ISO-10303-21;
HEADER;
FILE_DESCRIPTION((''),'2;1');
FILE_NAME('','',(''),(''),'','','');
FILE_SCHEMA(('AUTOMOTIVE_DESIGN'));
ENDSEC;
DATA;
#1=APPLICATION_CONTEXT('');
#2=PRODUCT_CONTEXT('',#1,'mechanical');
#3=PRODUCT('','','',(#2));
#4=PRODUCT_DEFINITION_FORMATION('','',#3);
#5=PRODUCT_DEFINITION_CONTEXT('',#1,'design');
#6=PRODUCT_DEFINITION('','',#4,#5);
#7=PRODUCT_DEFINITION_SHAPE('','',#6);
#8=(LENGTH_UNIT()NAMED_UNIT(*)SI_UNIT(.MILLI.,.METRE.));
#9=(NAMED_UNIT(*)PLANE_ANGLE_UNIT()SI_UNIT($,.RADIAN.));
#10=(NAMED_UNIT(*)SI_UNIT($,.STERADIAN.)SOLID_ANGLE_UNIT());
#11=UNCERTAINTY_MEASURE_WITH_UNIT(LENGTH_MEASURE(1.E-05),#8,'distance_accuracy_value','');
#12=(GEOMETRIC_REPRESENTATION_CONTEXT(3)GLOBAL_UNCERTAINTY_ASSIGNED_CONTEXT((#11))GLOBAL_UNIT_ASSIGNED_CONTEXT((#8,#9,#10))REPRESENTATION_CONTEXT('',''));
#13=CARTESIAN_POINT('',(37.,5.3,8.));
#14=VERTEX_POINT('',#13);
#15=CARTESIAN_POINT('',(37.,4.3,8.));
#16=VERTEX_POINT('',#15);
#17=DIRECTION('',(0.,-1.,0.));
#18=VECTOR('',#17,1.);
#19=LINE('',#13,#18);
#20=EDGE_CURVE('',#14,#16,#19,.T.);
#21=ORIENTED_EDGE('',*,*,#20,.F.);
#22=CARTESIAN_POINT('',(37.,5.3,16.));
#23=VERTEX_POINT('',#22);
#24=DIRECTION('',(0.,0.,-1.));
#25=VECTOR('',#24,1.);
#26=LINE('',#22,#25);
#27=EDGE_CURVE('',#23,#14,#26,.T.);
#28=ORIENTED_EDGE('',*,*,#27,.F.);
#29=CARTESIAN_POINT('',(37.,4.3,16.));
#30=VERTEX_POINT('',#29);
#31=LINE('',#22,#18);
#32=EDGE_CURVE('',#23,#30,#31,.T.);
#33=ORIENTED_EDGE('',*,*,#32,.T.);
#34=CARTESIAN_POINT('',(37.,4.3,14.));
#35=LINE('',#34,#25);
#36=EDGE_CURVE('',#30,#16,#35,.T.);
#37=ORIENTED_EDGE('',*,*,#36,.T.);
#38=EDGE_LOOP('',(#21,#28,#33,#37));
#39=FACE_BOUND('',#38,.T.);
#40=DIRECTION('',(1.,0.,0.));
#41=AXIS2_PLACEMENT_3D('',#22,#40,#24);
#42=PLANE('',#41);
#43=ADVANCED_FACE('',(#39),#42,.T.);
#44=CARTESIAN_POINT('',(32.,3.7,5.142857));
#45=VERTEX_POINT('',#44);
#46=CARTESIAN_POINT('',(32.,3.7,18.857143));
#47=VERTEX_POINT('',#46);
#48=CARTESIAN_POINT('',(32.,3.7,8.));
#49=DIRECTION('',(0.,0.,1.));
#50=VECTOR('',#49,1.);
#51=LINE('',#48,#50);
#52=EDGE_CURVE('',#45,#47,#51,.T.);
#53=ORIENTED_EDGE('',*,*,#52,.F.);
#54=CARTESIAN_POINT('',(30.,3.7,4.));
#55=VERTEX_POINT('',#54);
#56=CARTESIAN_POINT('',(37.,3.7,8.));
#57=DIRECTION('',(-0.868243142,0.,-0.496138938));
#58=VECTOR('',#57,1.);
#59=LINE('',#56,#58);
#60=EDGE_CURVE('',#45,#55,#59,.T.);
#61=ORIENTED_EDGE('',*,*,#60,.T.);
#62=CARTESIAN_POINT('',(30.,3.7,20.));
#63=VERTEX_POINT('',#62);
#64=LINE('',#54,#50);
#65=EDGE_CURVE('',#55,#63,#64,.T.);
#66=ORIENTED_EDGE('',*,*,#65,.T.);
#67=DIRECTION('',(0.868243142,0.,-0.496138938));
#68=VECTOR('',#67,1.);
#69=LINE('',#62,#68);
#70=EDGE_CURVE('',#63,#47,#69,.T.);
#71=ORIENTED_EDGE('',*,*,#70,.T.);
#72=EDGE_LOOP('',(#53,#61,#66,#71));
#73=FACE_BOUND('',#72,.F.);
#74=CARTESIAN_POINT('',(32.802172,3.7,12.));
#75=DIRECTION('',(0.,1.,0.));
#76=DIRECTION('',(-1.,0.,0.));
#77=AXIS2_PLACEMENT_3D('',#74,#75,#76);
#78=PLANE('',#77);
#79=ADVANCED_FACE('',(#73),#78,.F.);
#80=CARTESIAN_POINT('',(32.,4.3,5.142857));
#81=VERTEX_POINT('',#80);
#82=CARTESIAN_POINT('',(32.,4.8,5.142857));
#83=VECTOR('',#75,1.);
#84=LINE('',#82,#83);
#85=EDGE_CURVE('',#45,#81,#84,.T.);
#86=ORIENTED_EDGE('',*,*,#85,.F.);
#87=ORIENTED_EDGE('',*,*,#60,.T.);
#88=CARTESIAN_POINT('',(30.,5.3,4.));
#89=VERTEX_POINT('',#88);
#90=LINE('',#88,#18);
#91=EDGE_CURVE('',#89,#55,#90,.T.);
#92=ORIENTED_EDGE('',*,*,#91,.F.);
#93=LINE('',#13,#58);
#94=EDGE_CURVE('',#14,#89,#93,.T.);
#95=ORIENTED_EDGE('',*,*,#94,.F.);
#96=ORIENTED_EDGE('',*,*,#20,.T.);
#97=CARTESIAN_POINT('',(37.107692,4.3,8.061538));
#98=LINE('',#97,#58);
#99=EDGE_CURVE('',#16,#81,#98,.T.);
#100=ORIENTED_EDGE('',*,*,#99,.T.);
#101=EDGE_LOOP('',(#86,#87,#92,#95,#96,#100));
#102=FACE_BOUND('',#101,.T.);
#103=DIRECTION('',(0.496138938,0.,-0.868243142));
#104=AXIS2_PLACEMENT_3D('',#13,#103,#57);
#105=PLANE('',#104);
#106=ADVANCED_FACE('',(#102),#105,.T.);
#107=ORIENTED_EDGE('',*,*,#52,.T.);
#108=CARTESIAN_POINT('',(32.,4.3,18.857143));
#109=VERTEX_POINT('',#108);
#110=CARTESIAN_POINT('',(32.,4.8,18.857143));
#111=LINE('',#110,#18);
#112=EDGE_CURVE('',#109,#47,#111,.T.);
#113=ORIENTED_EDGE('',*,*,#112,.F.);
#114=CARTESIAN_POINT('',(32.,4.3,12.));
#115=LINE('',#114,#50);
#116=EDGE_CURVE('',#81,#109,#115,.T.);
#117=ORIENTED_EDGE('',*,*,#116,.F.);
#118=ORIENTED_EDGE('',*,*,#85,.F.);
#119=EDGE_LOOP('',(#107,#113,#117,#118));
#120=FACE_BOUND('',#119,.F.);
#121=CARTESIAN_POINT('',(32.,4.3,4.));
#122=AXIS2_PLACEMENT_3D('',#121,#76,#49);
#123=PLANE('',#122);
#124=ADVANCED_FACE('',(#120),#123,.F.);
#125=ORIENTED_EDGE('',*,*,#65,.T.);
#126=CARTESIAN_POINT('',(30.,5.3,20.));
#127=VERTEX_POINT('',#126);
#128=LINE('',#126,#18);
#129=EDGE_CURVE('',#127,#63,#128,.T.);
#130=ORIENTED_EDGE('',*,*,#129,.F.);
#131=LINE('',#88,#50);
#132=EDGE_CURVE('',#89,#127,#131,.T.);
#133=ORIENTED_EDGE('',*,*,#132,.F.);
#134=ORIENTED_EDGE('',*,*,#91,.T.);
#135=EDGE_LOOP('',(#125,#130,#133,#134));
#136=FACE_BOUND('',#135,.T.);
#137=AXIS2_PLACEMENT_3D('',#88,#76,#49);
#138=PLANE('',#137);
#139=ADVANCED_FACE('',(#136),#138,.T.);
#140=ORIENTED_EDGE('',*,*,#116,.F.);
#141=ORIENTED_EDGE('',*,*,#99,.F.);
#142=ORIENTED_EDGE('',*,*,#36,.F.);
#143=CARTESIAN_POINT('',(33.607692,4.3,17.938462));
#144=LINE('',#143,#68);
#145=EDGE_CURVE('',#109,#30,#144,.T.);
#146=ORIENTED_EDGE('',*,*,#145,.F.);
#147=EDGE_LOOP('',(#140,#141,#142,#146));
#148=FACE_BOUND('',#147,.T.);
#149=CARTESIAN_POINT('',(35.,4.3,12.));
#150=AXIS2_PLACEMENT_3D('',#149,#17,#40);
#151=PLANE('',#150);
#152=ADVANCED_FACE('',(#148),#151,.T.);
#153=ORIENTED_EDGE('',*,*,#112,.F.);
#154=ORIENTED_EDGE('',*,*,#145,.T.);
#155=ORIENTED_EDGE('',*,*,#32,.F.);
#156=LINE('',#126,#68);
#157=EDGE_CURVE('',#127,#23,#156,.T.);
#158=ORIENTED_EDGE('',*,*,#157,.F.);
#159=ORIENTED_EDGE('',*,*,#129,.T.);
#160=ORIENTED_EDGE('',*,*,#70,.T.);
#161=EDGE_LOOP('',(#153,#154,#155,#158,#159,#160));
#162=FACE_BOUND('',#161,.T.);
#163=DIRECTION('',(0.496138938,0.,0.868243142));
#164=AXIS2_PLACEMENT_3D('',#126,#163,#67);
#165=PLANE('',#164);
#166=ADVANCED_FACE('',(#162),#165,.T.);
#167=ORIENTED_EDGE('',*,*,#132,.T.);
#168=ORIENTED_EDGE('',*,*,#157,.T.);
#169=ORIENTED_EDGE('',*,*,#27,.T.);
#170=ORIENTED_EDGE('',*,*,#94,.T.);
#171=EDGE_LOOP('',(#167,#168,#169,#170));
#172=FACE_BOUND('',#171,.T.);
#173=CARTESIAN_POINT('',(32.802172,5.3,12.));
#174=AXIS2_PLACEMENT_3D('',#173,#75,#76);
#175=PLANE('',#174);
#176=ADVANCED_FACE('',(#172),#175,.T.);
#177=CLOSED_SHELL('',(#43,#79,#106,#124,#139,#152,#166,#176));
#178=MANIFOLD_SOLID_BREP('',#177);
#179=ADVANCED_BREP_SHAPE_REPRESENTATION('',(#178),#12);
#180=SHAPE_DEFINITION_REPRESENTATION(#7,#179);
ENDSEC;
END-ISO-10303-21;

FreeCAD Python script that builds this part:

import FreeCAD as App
import Part
import Sketcher

V = App.Vector

doc = App.newDocument("Part")
body = doc.addObject("PartDesign::Body", "Body")

# Sketch on XZ plane
sketch1 = doc.addObject("Sketcher::SketchObject", "Sketch")
body.addObject(sketch1)
sketch1.AttachmentSupport = (doc.XZ_Plane, [""])
sketch1.MapMode = "FlatFace"
sketch1.AttachmentOffset = App.Placement(V(0, 0, -4.3), App.Rotation())
sketch1.addGeometry([
    Part.LineSegment(V(32, 20, 0), V(32, 4, 0)),
    Part.LineSegment(V(32, 4, 0), V(38, 4, 0)),
    Part.LineSegment(V(38, 4, 0), V(38, 20, 0)),
    Part.LineSegment(V(38, 20, 0), V(32, 20, 0)),
], False)
sketch1.addConstraint([
    Sketcher.Constraint("Coincident", 0, 2, 1, 1),
    Sketcher.Constraint("Coincident", 1, 2, 2, 1),
    Sketcher.Constraint("Coincident", 2, 2, 3, 1),
    Sketcher.Constraint("Coincident", 3, 2, 0, 1),
    Sketcher.Constraint("Vertical", 0),
    Sketcher.Constraint("Horizontal", 1),
    Sketcher.Constraint("Vertical", 2),
    Sketcher.Constraint("Horizontal", 3),
    Sketcher.Constraint("DistanceX", 1, 1, 1, 2, 6.0),
    Sketcher.Constraint("DistanceY", 0, 2, 0, 1, 16.0),
    Sketcher.Constraint("DistanceX", -1, 1, 0, 2, 32.0),
    Sketcher.Constraint("DistanceY", -1, 1, 0, 2, 4.0),
])
pad1 = doc.addObject("PartDesign::Pad", "Pad")
body.addObject(pad1)
pad1.Profile = sketch1
pad1.Length = 1.6
body2 = doc.addObject("PartDesign::Body", "Body001")

# Sketch on XZ plane
sketch2 = doc.addObject("Sketcher::SketchObject", "Sketch001")
body2.addObject(sketch2)
sketch2.AttachmentSupport = (doc.getObject("XZ_Plane001"), [""])
sketch2.MapMode = "FlatFace"
sketch2.AttachmentOffset = App.Placement(V(0, 0, -5.3), App.Rotation())
sketch2.addGeometry([
    Part.LineSegment(V(37, 8, 0), V(37, 16, 0)),
    Part.LineSegment(V(37, 16, 0), V(30, 20, 0)),
    Part.LineSegment(V(30, 20, 0), V(30, 4, 0)),
    Part.LineSegment(V(30, 4, 0), V(37, 8, 0)),
], False)
sketch2.addConstraint([
    Sketcher.Constraint("Coincident", 0, 2, 1, 1),
    Sketcher.Constraint("Coincident", 1, 2, 2, 1),
    Sketcher.Constraint("Coincident", 2, 2, 3, 1),
    Sketcher.Constraint("Coincident", 3, 2, 0, 1),
    Sketcher.Constraint("Vertical", 0),
    Sketcher.Constraint("Vertical", 2),
    Sketcher.Constraint("Equal", 1, 3),
    Sketcher.Constraint("DistanceY", 0, 1, 0, 2, 8.0),
    Sketcher.Constraint("DistanceY", 2, 2, 2, 1, 16.0),
    Sketcher.Constraint("DistanceX", -1, 1, 0, 2, 37.0),
    Sketcher.Constraint("DistanceY", -1, 1, 0, 2, 16.0),
    Sketcher.Constraint("DistanceX", -1, 1, 1, 2, 30.0),
])
pad2 = doc.addObject("PartDesign::Pad", "Pad001")
body2.addObject(pad2)
pad2.Profile = sketch2
pad2.Length = 1.6
doc.recompute()

boolean = doc.addObject("PartDesign::Boolean", "Boolean")
body2.addObject(boolean)
boolean.Type = "Cut"
boolean.addObjects([body])

doc.recompute()
